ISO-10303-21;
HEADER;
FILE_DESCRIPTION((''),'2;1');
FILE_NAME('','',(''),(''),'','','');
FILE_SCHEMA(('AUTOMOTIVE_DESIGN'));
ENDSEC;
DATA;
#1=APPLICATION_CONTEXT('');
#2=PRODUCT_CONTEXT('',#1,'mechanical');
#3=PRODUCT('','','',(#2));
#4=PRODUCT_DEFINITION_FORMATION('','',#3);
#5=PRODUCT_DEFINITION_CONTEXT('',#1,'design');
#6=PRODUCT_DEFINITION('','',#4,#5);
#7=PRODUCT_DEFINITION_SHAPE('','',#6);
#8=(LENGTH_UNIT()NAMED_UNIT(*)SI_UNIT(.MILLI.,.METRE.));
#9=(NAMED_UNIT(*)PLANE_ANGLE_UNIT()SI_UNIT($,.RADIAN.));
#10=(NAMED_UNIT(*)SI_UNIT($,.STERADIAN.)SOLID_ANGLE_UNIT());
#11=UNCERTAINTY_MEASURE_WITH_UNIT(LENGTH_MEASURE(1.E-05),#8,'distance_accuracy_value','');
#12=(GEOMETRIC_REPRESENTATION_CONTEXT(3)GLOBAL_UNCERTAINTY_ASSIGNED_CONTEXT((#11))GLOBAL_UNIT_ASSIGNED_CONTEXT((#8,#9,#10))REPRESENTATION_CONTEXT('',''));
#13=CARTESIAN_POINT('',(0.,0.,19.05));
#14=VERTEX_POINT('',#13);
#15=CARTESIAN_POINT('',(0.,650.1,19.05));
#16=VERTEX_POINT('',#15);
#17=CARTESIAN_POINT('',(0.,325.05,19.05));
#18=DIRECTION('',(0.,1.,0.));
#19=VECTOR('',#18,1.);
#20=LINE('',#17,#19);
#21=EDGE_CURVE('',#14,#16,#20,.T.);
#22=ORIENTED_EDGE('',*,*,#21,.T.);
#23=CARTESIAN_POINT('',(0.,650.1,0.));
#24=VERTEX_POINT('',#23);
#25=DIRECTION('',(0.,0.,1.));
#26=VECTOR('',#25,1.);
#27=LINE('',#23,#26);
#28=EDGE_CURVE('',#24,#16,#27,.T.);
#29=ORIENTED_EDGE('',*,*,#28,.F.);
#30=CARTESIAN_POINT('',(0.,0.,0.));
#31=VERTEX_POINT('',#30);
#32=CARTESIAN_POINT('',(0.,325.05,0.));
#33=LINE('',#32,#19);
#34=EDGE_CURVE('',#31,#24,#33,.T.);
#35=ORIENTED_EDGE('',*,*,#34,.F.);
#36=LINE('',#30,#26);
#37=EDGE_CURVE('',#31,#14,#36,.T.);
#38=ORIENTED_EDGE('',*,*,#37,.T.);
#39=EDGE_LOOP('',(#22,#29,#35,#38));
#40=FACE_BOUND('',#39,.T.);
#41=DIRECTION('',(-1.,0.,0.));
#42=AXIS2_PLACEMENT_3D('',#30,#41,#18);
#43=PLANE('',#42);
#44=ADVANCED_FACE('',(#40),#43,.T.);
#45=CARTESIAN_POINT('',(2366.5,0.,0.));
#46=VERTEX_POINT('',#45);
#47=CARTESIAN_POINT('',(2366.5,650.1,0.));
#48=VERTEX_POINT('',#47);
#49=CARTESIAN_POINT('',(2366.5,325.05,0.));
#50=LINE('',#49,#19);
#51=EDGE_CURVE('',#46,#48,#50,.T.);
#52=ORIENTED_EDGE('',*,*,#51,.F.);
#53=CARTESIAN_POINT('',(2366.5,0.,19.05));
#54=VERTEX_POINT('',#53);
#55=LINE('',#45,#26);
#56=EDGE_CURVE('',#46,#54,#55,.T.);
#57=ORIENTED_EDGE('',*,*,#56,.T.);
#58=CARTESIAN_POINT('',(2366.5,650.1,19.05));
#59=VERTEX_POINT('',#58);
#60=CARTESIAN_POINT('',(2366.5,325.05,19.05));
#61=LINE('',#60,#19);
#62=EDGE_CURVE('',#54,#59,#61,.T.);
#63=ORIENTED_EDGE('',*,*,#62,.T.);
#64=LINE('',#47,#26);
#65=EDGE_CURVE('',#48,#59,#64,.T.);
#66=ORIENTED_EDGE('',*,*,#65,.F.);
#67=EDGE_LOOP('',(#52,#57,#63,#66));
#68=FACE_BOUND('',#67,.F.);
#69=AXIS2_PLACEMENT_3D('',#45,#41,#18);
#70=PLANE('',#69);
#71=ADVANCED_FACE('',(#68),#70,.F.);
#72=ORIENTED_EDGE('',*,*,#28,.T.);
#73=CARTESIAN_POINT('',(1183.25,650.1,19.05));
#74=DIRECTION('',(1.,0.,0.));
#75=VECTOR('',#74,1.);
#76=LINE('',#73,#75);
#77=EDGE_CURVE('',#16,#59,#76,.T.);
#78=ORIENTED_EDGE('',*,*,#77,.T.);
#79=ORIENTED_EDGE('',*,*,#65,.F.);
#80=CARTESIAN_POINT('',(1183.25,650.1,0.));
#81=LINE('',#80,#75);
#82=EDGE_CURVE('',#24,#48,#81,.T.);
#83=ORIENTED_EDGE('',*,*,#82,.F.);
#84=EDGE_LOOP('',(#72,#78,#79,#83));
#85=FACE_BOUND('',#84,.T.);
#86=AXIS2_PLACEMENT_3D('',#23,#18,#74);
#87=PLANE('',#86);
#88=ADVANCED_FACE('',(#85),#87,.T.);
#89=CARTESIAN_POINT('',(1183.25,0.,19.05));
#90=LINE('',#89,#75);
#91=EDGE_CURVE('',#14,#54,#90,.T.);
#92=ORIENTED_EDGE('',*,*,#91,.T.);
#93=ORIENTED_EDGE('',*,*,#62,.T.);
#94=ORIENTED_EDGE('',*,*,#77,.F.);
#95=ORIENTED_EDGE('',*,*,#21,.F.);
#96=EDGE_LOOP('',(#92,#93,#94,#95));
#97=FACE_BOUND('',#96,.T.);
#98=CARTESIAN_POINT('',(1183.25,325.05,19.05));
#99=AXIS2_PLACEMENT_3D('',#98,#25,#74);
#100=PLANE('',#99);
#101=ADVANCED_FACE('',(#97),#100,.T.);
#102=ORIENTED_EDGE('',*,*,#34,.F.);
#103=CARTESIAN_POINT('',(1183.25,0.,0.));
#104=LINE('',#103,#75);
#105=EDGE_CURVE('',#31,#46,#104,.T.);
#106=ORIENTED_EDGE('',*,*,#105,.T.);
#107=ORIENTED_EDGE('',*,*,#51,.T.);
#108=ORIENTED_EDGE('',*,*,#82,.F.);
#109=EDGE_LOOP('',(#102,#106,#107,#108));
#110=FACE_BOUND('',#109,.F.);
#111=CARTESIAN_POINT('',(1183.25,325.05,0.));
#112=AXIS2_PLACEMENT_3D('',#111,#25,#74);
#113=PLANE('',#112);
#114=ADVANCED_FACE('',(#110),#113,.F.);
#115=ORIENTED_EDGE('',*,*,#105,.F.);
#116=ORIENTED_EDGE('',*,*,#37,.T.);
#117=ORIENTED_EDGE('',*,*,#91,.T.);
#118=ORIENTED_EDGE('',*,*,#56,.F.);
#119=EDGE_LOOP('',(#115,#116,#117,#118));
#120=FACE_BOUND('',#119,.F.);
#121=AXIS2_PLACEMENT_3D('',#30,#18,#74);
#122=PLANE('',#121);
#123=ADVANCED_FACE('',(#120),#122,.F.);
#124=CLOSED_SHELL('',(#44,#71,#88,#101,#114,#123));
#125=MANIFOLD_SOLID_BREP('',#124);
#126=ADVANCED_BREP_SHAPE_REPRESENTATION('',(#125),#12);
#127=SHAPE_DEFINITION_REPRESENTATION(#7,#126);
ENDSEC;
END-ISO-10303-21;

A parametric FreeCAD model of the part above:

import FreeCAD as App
import Part
import Sketcher


def add_polygon(sketch, points):
    """Adds a closed chain of lines whose ends are joined by coincident constraints."""
    first, n = sketch.GeometryCount, len(points)
    for a, b in zip(points, points[1:] + points[:1]):
        sketch.addGeometry(Part.LineSegment(App.Vector(*a, 0), App.Vector(*b, 0)), False)
    for i in range(n):
        sketch.addConstraint(Sketcher.Constraint("Coincident", first + i, 2, first + (i + 1) % n, 1))

doc = App.newDocument("Part")
body = doc.addObject("PartDesign::Body", "Body")

sketch1 = body.newObject("Sketcher::SketchObject", "Sketch")
sketch1.AttachmentSupport = (doc.getObject("XY_Plane"), [""])
sketch1.MapMode = "FlatFace"
add_polygon(sketch1, [(0, 650), (0, 0), (2366, 0), (2366, 650)])
sketch1.addConstraint(Sketcher.Constraint("Vertical", 0))
sketch1.addConstraint(Sketcher.Constraint("Horizontal", 1))
sketch1.addConstraint(Sketcher.Constraint("Vertical", 2))
sketch1.addConstraint(Sketcher.Constraint("Horizontal", 3))
sketch1.addConstraint(Sketcher.Constraint("Coincident", 0, 2, -1, 1))
sketch1.addConstraint(Sketcher.Constraint("DistanceX", 1, 1, 1, 2, 2366.5))
sketch1.addConstraint(Sketcher.Constraint("DistanceY", 0, 2, 0, 1, 650.1))
pad1 = body.newObject("PartDesign::Pad", "Pad")
pad1.Profile = sketch1
pad1.Length = 19.05

doc.recompute()
